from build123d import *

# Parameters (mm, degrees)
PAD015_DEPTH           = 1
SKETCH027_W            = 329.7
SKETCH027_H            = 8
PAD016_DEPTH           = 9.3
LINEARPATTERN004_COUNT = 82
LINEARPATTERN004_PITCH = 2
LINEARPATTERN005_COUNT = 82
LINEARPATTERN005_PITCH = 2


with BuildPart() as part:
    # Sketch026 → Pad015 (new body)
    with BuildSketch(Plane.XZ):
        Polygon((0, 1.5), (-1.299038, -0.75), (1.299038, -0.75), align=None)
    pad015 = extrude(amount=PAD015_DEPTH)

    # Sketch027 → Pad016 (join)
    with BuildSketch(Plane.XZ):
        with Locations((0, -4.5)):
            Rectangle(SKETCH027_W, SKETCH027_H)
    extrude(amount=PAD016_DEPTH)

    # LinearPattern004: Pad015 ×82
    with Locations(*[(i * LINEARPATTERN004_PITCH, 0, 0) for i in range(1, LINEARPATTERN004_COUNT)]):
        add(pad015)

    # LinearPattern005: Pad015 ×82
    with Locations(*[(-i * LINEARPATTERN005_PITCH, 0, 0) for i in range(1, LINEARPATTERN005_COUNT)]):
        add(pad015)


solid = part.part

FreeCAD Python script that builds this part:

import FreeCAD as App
import Part
import Sketcher

V = App.Vector
Q = App.Units.Quantity

doc = App.newDocument("Part")
params = doc.addObject("Spreadsheet::Sheet", "Params")
for row, (alias, value) in enumerate([
    ("pad1_length", "1 mm"),
    ("sketch2_height", "8 mm"),
    ("sketch2_width", "329.7 mm"),
    ("pad2_length", "9.3 mm"),
    ("linearpattern_pitch", "2 mm"),
    ("linearpattern2_pitch", "2 mm"),
], start=1):
    params.set(f"A{row}", alias)
    params.set(f"B{row}", "=" + value)
    params.setAlias(f"B{row}", alias)

body = doc.addObject("PartDesign::Body", "Body")

sketch1 = body.newObject("Sketcher::SketchObject", "Sketch")
sketch1.AttachmentSupport = (doc.getObject("XZ_Plane"), [""])
sketch1.MapMode = "FlatFace"
sketch1.addGeometry(Part.LineSegment(V(0, 1.5, 0), V(-1.299038, -0.75, 0)), False)
sketch1.addGeometry(Part.LineSegment(V(-1.299038, -0.75, 0), V(1.299038, -0.75, 0)), False)
sketch1.addGeometry(Part.LineSegment(V(1.299038, -0.75, 0), V(0, 1.5, 0)), False)
sketch1.addConstraint(Sketcher.Constraint("Coincident", 0, 2, 1, 1))
sketch1.addConstraint(Sketcher.Constraint("Coincident", 1, 2, 2, 1))
sketch1.addConstraint(Sketcher.Constraint("Coincident", 2, 2, 0, 1))
sketch1.addConstraint(Sketcher.Constraint("Horizontal", 1))
sketch1.addConstraint(Sketcher.Constraint("PointOnObject", 2, 2, -2))
sketch1.addConstraint(Sketcher.Constraint("Equal", 0, 2))
sketch1.addConstraint(Sketcher.Constraint("Angle", 0, Q("-119.999998 deg")))
sketch1.addConstraint(Sketcher.Constraint("DistanceY", -1, 1, 2, 2, Q("1.5 mm")))
sketch1.addConstraint(Sketcher.Constraint("DistanceY", 0, 2, -1, 1, Q("0.75 mm")))
pad1 = body.newObject("PartDesign::Pad", "Pad")
pad1.Profile = sketch1
pad1.setExpression("Length", "Params.pad1_length")

sketch2 = body.newObject("Sketcher::SketchObject", "Sketch001")
sketch2.AttachmentSupport = (doc.getObject("XZ_Plane"), [""])
sketch2.MapMode = "FlatFace"
sketch2.addGeometry(Part.LineSegment(V(-164.85, -0.5, 0), V(-164.85, -8.5, 0)), False)
sketch2.addGeometry(Part.LineSegment(V(-164.85, -8.5, 0), V(164.85, -8.5, 0)), False)
sketch2.addGeometry(Part.LineSegment(V(164.85, -8.5, 0), V(164.85, -0.5, 0)), False)
sketch2.addGeometry(Part.LineSegment(V(164.85, -0.5, 0), V(-164.85, -0.5, 0)), False)
sketch2.addConstraint(Sketcher.Constraint("Coincident", 0, 2, 1, 1))
sketch2.addConstraint(Sketcher.Constraint("Coincident", 1, 2, 2, 1))
sketch2.addConstraint(Sketcher.Constraint("Coincident", 2, 2, 3, 1))
sketch2.addConstraint(Sketcher.Constraint("Coincident", 3, 2, 0, 1))
sketch2.addConstraint(Sketcher.Constraint("Vertical", 0))
sketch2.addConstraint(Sketcher.Constraint("Horizontal", 1))
sketch2.addConstraint(Sketcher.Constraint("Vertical", 2))
sketch2.addConstraint(Sketcher.Constraint("Horizontal", 3))
sketch2.addConstraint(Sketcher.Constraint("DistanceY", 0, 2, 0, 1, Q("8 mm")))
sketch2.addConstraint(Sketcher.Constraint("DistanceX", 1, 1, 1, 2, Q("329.7 mm")))
sketch2.addConstraint(Sketcher.Constraint("DistanceY", 0, 2, -1, 1, Q("8.5 mm")))
sketch2.addConstraint(Sketcher.Constraint("DistanceX", 0, 2, -1, 1, Q("164.85 mm")))
sketch2.setExpression("Constraints[8]", "Params.sketch2_height")
sketch2.setExpression("Constraints[9]", "Params.sketch2_width")
pad2 = body.newObject("PartDesign::Pad", "Pad001")
pad2.Profile = sketch2
pad2.setExpression("Length", "Params.pad2_length")
doc.recompute()

linearpattern = body.newObject("PartDesign::LinearPattern", "LinearPattern")
linearpattern.Originals = [pad1]
linearpattern.Direction = (doc.getObject("X_Axis"), [""])
linearpattern.Mode = "offset"
linearpattern.setExpression("Offset", "Params.linearpattern_pitch")
linearpattern.Occurrences = 82
body.Tip = linearpattern
doc.recompute()

linearpattern2 = body.newObject("PartDesign::LinearPattern", "LinearPattern001")
linearpattern2.Originals = [pad1]
linearpattern2.Direction = (doc.getObject("X_Axis"), [""])
linearpattern2.Mode = "offset"
linearpattern2.setExpression("Offset", "Params.linearpattern2_pitch")
linearpattern2.Occurrences = 82
linearpattern2.Reversed = True
body.Tip = linearpattern2

doc.recompute()
